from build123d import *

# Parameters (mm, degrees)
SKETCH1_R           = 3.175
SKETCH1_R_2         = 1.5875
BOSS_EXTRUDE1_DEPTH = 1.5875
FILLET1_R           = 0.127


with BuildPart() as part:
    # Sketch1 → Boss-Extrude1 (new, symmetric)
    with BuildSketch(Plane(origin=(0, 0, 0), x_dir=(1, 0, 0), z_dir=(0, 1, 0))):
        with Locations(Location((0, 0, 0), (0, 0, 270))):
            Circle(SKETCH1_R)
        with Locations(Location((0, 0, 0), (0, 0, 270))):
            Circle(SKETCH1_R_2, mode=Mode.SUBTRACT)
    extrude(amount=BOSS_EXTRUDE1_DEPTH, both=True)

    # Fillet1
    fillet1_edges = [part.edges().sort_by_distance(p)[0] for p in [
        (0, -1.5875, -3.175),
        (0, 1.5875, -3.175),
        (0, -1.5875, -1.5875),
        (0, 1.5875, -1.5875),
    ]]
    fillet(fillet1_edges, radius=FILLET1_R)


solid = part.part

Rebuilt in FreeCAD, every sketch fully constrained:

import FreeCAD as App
import Part
import Sketcher
from FreeCAD import Vector
Q = App.Units.Quantity


def edges_at(feature, points):
    """Names of the edges that pass closest to the given points."""
    edges = feature.Shape.Edges
    near = lambda p: min(range(len(edges)), key=lambda i: edges[i].distToShape(Part.Vertex(*p))[0])
    return sorted({f"Edge{near(p) + 1}" for p in points})

doc = App.newDocument("Part")
body = doc.addObject("PartDesign::Body", "Body")

sketch1 = body.newObject("Sketcher::SketchObject", "Sketch")
sketch1.AttachmentSupport = (doc.getObject("XZ_Plane"), [""])
sketch1.MapMode = "FlatFace"
sketch1.addGeometry([
    Part.Circle(Vector(0, 0, 0), Vector(0, 0, 1), 3.2),
    Part.Circle(Vector(0, 0, 0), Vector(0, 0, 1), 1.6),
], False)
sketch1.addConstraint([
    Sketcher.Constraint("Coincident", 0, 3, -1, 1),
    Sketcher.Constraint("Coincident", 1, 3, -1, 1),
    Sketcher.Constraint("Diameter", 0, Q("0.25 in")),
    Sketcher.Constraint("Diameter", 1, Q("0.125 in")),
])
pad1 = body.newObject("PartDesign::Pad", "Pad")
pad1.Profile = sketch1
pad1.Length = Q("0.125 in")
pad1.Midplane = True
doc.recompute()

fillet = body.newObject("PartDesign::Fillet", "Fillet")
fillet.Base = (pad1, edges_at(pad1, [
    (0, -1.587, -3.175),
    (0, 1.587, -3.175),
    (0, -1.587, -1.587),
    (0, 1.587, -1.587),
]))
fillet.Radius = Q("0.005 in")

doc.recompute()
